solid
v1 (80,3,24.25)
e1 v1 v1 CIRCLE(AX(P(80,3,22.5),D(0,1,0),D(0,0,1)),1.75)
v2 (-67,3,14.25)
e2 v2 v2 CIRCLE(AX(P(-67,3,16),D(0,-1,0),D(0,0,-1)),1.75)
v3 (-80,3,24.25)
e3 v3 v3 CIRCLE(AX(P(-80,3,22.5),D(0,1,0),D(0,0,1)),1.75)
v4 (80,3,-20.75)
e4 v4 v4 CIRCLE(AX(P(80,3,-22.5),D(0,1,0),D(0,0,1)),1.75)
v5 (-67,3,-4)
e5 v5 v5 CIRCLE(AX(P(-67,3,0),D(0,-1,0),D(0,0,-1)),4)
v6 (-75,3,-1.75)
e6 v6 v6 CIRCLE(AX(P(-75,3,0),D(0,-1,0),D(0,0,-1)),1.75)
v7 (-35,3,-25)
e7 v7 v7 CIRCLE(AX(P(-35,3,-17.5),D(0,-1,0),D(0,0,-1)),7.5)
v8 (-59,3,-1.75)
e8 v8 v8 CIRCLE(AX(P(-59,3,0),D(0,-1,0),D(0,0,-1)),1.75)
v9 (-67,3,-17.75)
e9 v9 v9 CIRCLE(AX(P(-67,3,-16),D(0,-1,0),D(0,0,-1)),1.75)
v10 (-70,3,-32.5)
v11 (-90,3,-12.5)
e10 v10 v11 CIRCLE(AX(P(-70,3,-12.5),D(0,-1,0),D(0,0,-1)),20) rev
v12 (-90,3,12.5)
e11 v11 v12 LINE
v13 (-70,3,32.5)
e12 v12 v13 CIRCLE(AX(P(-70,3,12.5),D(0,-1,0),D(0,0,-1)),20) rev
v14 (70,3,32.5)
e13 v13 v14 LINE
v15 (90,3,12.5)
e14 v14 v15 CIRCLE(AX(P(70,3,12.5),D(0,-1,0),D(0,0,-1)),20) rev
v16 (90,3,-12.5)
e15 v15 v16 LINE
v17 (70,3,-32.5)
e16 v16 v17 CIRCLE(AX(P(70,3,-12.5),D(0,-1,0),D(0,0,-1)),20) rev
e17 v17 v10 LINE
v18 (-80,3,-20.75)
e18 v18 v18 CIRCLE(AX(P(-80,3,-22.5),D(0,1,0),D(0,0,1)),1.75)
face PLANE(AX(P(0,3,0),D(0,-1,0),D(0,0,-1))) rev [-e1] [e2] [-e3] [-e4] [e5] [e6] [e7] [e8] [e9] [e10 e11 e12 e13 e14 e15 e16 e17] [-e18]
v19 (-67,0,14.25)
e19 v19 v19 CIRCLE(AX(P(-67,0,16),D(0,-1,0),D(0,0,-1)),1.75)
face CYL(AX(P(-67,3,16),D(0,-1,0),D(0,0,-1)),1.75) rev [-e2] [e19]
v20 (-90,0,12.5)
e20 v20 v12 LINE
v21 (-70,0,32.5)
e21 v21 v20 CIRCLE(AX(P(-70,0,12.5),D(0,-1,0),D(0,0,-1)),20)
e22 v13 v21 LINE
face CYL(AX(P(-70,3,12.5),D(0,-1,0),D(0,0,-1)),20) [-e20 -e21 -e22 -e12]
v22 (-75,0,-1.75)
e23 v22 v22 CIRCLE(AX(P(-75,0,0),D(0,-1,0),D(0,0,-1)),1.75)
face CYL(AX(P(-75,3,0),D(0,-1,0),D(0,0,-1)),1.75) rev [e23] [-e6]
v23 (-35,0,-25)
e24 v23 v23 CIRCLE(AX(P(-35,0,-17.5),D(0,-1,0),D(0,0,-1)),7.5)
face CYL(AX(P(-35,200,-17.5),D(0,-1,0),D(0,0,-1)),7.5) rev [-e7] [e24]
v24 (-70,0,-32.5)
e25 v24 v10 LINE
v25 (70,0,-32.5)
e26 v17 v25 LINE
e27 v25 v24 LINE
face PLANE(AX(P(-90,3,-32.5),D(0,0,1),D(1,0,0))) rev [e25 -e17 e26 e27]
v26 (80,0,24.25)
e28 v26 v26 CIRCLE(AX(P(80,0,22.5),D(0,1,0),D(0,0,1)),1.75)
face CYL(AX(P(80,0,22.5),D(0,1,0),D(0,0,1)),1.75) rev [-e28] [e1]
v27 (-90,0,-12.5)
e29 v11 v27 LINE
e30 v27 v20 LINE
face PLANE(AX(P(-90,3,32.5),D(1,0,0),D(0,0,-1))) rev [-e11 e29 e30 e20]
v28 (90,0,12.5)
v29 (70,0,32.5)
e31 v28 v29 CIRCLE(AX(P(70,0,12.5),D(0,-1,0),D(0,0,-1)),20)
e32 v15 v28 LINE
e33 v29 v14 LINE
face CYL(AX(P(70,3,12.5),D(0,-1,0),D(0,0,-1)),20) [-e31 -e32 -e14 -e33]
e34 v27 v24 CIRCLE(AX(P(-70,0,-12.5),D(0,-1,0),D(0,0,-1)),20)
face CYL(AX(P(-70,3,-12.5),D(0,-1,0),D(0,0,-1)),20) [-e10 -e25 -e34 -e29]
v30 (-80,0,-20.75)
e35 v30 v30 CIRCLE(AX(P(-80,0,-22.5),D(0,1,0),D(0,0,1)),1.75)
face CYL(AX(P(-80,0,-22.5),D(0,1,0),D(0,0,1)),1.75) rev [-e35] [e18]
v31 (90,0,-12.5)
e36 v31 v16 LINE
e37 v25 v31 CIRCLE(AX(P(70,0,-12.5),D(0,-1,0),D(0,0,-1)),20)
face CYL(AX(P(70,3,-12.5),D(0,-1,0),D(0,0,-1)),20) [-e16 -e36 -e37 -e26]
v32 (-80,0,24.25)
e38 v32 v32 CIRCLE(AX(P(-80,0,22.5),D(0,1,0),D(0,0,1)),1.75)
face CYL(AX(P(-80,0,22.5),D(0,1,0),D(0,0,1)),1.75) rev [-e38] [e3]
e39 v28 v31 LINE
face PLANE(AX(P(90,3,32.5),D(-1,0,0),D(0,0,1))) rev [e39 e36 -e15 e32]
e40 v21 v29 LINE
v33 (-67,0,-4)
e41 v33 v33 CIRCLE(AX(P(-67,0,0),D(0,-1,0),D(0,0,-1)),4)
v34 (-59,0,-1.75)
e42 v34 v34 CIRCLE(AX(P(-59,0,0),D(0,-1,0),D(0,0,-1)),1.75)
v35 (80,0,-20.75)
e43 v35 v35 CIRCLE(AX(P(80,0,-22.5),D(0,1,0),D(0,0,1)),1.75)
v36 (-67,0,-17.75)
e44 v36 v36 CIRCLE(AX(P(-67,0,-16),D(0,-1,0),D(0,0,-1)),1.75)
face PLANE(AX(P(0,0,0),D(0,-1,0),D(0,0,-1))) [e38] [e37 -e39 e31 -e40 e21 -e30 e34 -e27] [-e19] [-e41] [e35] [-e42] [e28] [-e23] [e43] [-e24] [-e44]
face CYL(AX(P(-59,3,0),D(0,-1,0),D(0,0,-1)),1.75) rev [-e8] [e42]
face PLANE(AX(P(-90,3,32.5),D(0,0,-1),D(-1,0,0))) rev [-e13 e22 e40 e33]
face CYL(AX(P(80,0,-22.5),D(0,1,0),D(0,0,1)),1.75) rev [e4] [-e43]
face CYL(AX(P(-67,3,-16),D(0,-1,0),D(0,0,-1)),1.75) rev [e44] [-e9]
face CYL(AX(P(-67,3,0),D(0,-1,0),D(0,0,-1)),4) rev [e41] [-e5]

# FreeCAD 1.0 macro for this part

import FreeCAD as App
import Part
import Sketcher

V = App.Vector
Q = App.Units.Quantity


def edges_at(feature, points):
    """Names of the edges that pass closest to the given points."""
    edges = feature.Shape.Edges
    near = lambda p: min(range(len(edges)), key=lambda i: edges[i].distToShape(Part.Vertex(*p))[0])
    return sorted({f"Edge{near(p) + 1}" for p in points})


def add_polygon(sketch, points):
    """Adds a closed chain of lines whose ends are joined by coincident constraints."""
    first, n = sketch.GeometryCount, len(points)
    for a, b in zip(points, points[1:] + points[:1]):
        sketch.addGeometry(Part.LineSegment(App.Vector(*a, 0), App.Vector(*b, 0)), False)
    for i in range(n):
        sketch.addConstraint(Sketcher.Constraint("Coincident", first + i, 2, first + (i + 1) % n, 1))

doc = App.newDocument("Part")
body = doc.addObject("PartDesign::Body", "Body")

sketch1 = body.newObject("Sketcher::SketchObject", "Sketch")
sketch1.AttachmentSupport = (doc.getObject("XZ_Plane"), [""])
sketch1.MapMode = "FlatFace"
add_polygon(sketch1, [(-90, -32), (-90, 32), (90, 32), (90, -32)])
sketch1.addConstraint([
    Sketcher.Constraint("Vertical", 0),
    Sketcher.Constraint("Horizontal", 1),
    Sketcher.Constraint("Vertical", 2),
    Sketcher.Constraint("Horizontal", 3),
    Sketcher.Constraint("Symmetric", 0, 2, 2, 2, -1, 1),
    Sketcher.Constraint("DistanceX", 1, 1, 1, 2, Q("180 mm")),
    Sketcher.Constraint("DistanceY", 0, 1, 0, 2, Q("65 mm")),
])
pad1 = body.newObject("PartDesign::Pad", "Pad")
pad1.Profile = sketch1
pad1.Length = 3
pad1.Reversed = True
doc.recompute()

fillet = body.newObject("PartDesign::Fillet", "Fillet")
fillet.Base = (pad1, edges_at(pad1, [
    (90, 1.5, 32.5),
    (-90, 1.5, 32.5),
    (-90, 1.5, -32.5),
    (90, 1.5, -32.5),
]))
fillet.Radius = 20

sketch2 = body.newObject("Sketcher::SketchObject", "Sketch001")
sketch2.AttachmentSupport = (doc.getObject("XZ_Plane"), [""])
sketch2.MapMode = "FlatFace"
sketch2.AttachmentOffset = App.Placement(V(0, 0, -3), App.Rotation())
sketch2.addGeometry([
    Part.Circle(V(-80, -22.5, 0), V(0, 0, 1), 1.8),
    Part.Circle(V(-80, 22.5, 0), V(0, 0, 1), 1.8),
    Part.Circle(V(80, 22.5, 0), V(0, 0, 1), 1.8),
    Part.Circle(V(80, -22.5, 0), V(0, 0, 1), 1.8),
], False)
sketch2.addConstraint([
    Sketcher.Constraint("Equal", 0, 1),
    Sketcher.Constraint("Equal", 1, 2),
    Sketcher.Constraint("Equal", 2, 3),
    Sketcher.Constraint("Symmetric", 0, 3, 2, 3, -1, 1),
    Sketcher.Constraint("Symmetric", 1, 3, 3, 3, -1, 1),
    Sketcher.Constraint("Symmetric", 1, 3, 2, 3, -2),
    Sketcher.Constraint("Diameter", 0, Q("3.5 mm")),
    Sketcher.Constraint("DistanceX", 0, 3, -1, 1, Q("80 mm")),
    Sketcher.Constraint("DistanceY", 0, 3, 1, 3, Q("45 mm")),
])
pocket1 = body.newObject("PartDesign::Pocket", "Pocket")
pocket1.Profile = sketch2
pocket1.Length = 3
pocket1.Reversed = True

sketch3 = body.newObject("Sketcher::SketchObject", "Sketch002")
sketch3.AttachmentSupport = (doc.getObject("XZ_Plane"), [""])
sketch3.MapMode = "FlatFace"
sketch3.addGeometry([
    Part.Circle(V(-67, 16, 0), V(0, 0, 1), 1.8),
    Part.Circle(V(-59, 0, 0), V(0, 0, 1), 1.8),
    Part.Circle(V(-67, -16, 0), V(0, 0, 1), 1.8),
    Part.Circle(V(-67, 0, 0), V(0, 0, 1), 4),
    Part.Circle(V(-75, 0, 0), V(0, 0, 1), 1.8),
], False)
sketch3.addConstraint([
    Sketcher.Constraint("Equal", 0, 1),
    Sketcher.Constraint("Equal", 1, 2),
    Sketcher.Constraint("Equal", 2, 4),
    Sketcher.Constraint("Symmetric", 0, 3, 2, 3, -1),
    Sketcher.Constraint("PointOnObject", 1, 3, -1),
    Sketcher.Constraint("PointOnObject", 3, 3, -1),
    Sketcher.Constraint("PointOnObject", 4, 3, -1),
    Sketcher.Constraint("Vertical", 2, 3, 3, 3),
    Sketcher.Constraint("Diameter", 3, Q("8 mm")),
    Sketcher.Constraint("Diameter", 0, Q("3.5 mm")),
    Sketcher.Constraint("DistanceX", 0, 3, -1, 1, Q("67 mm")),
    Sketcher.Constraint("DistanceY", -1, 1, 0, 3, Q("16 mm")),
    Sketcher.Constraint("DistanceX", 1, 3, -1, 1, Q("59 mm")),
    Sketcher.Constraint("DistanceX", 4, 3, -1, 1, Q("75 mm")),
])
pocket2 = body.newObject("PartDesign::Pocket", "Pocket001")
pocket2.Profile = sketch3
pocket2.Length = 3

sketch4 = body.newObject("Sketcher::SketchObject", "Sketch003")
sketch4.AttachmentSupport = (doc.getObject("XZ_Plane"), [""])
sketch4.MapMode = "FlatFace"
sketch4.addGeometry(Part.Circle(V(-35, -18, 0), V(0, 0, 1), 8), False)
sketch4.addConstraint([
    Sketcher.Constraint("Diameter", 0, Q("15 mm")),
    Sketcher.Constraint("DistanceX", 0, 3, -1, 1, Q("35 mm")),
    Sketcher.Constraint("DistanceY", 0, 3, -1, 1, Q("17.5 mm")),
])
pocket3 = body.newObject("PartDesign::Pocket", "Pocket002")
pocket3.Profile = sketch4
pocket3.Length = 200

doc.recompute()
